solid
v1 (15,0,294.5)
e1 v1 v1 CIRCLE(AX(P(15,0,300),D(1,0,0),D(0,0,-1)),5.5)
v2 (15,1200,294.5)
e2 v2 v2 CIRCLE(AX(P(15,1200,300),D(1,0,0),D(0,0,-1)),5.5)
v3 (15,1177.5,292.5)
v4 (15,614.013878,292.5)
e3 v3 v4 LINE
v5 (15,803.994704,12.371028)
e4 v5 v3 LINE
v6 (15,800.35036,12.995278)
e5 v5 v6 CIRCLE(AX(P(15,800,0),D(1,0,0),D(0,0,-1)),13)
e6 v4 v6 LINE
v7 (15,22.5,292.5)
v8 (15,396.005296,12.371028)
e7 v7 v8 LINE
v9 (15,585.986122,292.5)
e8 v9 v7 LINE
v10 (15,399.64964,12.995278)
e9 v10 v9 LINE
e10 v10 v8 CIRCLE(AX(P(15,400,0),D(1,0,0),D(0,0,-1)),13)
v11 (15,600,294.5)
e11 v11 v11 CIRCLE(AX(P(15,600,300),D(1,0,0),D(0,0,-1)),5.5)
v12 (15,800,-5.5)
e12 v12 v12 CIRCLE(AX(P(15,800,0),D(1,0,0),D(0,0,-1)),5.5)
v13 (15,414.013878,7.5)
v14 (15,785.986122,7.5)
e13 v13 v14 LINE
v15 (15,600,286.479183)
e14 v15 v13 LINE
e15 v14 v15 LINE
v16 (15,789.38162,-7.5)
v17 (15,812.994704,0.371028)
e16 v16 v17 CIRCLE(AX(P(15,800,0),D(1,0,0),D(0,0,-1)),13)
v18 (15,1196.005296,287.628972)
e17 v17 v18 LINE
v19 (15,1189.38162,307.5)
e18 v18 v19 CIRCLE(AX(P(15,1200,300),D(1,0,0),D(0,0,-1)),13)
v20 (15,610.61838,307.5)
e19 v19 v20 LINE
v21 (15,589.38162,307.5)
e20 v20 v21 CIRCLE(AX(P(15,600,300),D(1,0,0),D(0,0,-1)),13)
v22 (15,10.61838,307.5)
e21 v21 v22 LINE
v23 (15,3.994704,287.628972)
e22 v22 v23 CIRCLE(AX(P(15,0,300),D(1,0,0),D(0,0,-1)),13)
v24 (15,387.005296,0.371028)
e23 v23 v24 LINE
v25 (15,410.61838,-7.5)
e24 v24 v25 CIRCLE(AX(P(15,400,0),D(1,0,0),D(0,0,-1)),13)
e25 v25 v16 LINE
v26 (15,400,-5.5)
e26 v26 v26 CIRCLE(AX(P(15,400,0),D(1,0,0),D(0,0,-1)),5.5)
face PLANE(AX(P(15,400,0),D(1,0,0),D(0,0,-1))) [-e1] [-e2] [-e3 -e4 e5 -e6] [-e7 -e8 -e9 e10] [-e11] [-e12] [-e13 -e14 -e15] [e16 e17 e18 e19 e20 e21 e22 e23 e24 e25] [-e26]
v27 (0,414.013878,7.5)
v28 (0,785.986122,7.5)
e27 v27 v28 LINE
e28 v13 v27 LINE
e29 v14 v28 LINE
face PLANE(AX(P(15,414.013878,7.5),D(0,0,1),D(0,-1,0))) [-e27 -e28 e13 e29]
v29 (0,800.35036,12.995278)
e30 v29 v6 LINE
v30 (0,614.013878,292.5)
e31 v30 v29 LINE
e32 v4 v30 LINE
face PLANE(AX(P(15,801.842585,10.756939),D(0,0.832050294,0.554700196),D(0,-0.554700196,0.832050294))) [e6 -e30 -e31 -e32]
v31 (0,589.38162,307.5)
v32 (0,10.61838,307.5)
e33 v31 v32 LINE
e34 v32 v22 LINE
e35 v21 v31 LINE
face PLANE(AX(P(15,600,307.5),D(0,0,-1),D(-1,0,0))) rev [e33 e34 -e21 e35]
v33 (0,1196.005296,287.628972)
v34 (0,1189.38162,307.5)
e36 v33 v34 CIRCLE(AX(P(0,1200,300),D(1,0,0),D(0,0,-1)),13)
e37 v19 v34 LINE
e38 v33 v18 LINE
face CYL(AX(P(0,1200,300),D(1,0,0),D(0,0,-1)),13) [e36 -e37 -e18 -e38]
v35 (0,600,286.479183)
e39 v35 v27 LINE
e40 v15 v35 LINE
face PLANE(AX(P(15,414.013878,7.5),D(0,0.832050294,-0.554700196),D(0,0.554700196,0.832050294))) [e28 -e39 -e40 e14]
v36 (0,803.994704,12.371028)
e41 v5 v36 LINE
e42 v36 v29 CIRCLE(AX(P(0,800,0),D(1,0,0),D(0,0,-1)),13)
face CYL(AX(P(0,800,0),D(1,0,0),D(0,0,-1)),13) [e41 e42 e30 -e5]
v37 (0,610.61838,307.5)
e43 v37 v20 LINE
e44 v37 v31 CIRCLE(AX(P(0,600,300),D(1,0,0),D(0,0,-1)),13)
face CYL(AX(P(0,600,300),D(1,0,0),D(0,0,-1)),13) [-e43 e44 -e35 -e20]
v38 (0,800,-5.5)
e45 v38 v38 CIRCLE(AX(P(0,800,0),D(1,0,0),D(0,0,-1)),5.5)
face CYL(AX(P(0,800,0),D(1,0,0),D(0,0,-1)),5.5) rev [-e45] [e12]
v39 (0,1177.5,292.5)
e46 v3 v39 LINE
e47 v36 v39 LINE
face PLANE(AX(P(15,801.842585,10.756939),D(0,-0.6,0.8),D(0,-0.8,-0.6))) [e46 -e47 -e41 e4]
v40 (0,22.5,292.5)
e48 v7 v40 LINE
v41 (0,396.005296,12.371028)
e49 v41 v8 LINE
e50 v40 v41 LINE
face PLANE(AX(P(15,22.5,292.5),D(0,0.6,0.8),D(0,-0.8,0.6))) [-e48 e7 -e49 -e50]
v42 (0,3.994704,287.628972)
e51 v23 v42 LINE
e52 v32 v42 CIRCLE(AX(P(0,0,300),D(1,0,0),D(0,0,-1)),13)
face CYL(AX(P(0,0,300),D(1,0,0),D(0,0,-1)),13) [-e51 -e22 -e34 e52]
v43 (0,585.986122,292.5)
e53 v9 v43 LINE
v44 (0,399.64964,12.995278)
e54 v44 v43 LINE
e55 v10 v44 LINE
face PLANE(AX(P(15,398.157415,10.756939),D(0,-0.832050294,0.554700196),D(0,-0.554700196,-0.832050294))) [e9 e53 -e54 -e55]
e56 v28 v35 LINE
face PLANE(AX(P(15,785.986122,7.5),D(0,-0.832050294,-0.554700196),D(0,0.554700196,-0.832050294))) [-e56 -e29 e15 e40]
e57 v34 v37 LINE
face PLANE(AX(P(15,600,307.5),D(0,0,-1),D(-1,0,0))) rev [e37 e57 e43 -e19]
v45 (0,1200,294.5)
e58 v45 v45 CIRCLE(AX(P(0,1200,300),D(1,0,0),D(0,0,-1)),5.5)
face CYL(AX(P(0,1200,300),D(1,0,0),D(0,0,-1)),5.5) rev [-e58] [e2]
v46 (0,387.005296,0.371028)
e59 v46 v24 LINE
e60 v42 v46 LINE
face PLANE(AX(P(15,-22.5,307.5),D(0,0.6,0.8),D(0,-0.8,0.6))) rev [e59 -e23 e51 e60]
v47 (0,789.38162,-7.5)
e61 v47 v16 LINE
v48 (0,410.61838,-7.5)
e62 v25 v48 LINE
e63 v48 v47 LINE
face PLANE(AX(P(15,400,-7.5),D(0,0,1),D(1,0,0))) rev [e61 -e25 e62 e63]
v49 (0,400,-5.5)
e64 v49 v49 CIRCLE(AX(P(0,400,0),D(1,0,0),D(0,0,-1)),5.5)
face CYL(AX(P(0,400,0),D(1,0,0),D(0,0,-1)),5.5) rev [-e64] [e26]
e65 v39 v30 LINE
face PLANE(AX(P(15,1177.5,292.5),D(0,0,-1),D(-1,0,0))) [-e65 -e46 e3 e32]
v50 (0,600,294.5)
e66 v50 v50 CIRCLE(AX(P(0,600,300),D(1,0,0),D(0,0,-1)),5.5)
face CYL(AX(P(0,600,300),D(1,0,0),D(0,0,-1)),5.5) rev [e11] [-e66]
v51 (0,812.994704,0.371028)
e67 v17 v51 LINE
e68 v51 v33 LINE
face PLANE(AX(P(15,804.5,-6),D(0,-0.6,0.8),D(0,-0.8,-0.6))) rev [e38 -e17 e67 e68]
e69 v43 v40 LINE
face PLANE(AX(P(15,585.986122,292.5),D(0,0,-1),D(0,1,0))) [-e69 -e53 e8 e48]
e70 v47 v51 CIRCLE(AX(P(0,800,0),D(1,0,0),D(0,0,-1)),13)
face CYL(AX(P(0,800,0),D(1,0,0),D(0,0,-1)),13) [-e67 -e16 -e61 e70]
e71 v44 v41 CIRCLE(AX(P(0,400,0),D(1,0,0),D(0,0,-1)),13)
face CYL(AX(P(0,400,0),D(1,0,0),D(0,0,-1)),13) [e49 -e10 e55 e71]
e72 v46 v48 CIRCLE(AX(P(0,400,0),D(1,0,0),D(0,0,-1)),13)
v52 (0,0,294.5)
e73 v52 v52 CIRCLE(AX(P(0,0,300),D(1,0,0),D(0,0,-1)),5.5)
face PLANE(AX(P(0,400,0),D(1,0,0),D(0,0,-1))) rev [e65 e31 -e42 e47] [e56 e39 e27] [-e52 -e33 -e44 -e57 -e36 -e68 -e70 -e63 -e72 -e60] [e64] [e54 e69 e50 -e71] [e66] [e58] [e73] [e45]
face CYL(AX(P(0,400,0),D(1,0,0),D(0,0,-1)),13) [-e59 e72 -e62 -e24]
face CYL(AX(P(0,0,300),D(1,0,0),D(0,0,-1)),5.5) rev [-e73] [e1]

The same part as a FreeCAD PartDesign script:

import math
import FreeCAD as App
import Part
import Sketcher
Q = App.Units.Quantity


def add_polygon(sketch, points):
    """Adds a closed chain of lines whose ends are joined by coincident constraints."""
    first, n = sketch.GeometryCount, len(points)
    for a, b in zip(points, points[1:] + points[:1]):
        sketch.addGeometry(Part.LineSegment(App.Vector(*a, 0), App.Vector(*b, 0)), False)
    for i in range(n):
        sketch.addConstraint(Sketcher.Constraint("Coincident", first + i, 2, first + (i + 1) % n, 1))

doc = App.newDocument("Part")
body = doc.addObject("PartDesign::Body", "Body")

# Sketch on YZ plane
sketch1 = doc.addObject("Sketcher::SketchObject", "Sketch")
body.addObject(sketch1)
sketch1.AttachmentSupport = (doc.YZ_Plane, [""])
sketch1.MapMode = "FlatFace"
sketch1.addGeometry(Part.LineSegment(App.Vector(-22.5, 307.5, 0), App.Vector(395.5, -6, 0)), False)  # 0
sketch1.addGeometry(Part.ArcOfCircle(Part.Circle(App.Vector(400, 0, 0), App.Vector(0, 0, 1), 7.5), math.radians(-126.869898), math.radians(-90)), False)  # 1
sketch1.addGeometry(Part.LineSegment(App.Vector(400, -7.5, 0), App.Vector(800, -7.5, 0)), False)  # 2
sketch1.addGeometry(Part.ArcOfCircle(Part.Circle(App.Vector(800, 0, 0), App.Vector(0, 0, 1), 7.5), math.radians(-90), math.radians(-53.130102)), False)  # 3
sketch1.addGeometry(Part.LineSegment(App.Vector(804.5, -6, 0), App.Vector(1222.5, 307.5, 0)), False)  # 4
sketch1.addGeometry(Part.LineSegment(App.Vector(1222.5, 307.5, 0), App.Vector(-22.5, 307.5, 0)), False)  # 5
add_polygon(sketch1, [(785.986122, 7.5), (414.013878, 7.5), (600, 286.479183)])  # lines 6-8
add_polygon(sketch1, [(22.5, 292.5), (585.986122, 292.5), (398.157415, 10.756939)])  # lines 9-11
add_polygon(sketch1, [(1177.5, 292.5), (801.842585, 10.756939), (614.013878, 292.5)])  # lines 12-14
sketch1.addConstraint(Sketcher.Constraint("Tangent", 0, 2, 1, 1))
sketch1.addConstraint(Sketcher.Constraint("Tangent", 1, 2, 2, 1))
sketch1.addConstraint(Sketcher.Constraint("Tangent", 2, 2, 3, 1))
sketch1.addConstraint(Sketcher.Constraint("Tangent", 3, 2, 4, 1))
sketch1.addConstraint(Sketcher.Constraint("Coincident", 4, 2, 5, 1))
sketch1.addConstraint(Sketcher.Constraint("Coincident", 5, 2, 0, 1))
sketch1.addConstraint(Sketcher.Constraint("Horizontal", 2))
sketch1.addConstraint(Sketcher.Constraint("Horizontal", 5))
sketch1.addConstraint(Sketcher.Constraint("Horizontal", 6))
sketch1.addConstraint(Sketcher.Constraint("Horizontal", 9))
sketch1.addConstraint(Sketcher.Constraint("Horizontal", 14))
sketch1.addConstraint(Sketcher.Constraint("Equal", 1, 3))
sketch1.addConstraint(Sketcher.Constraint("PointOnObject", 1, 3, -1))
sketch1.addConstraint(Sketcher.Constraint("Parallel", 7, 10))
sketch1.addConstraint(Sketcher.Constraint("Parallel", 0, 11))
sketch1.addConstraint(Sketcher.Constraint("Parallel", 4, 12))
sketch1.addConstraint(Sketcher.Constraint("Parallel", 8, 13))
sketch1.addConstraint(Sketcher.Constraint("Horizontal", 10, 2, 12, 2))
sketch1.addConstraint(Sketcher.Constraint("Horizontal", 11, 2, 13, 2))
sketch1.addConstraint(Sketcher.Constraint("Equal", 9, 14))
sketch1.addConstraint(Sketcher.Constraint("Equal", 0, 4))
sketch1.addConstraint(Sketcher.Constraint("Radius", 1, Q("7.5 mm")))
sketch1.addConstraint(Sketcher.Constraint("DistanceX", 2, 1, 2, 2, Q("400 mm")))
sketch1.addConstraint(Sketcher.Constraint("DistanceX", 5, 2, 5, 1, Q("1245 mm")))
sketch1.addConstraint(Sketcher.Constraint("DistanceX", -1, 1, 1, 3, Q("400 mm")))
sketch1.addConstraint(Sketcher.Constraint("DistanceY", 0, 2, -1, 1, Q("6 mm")))
sketch1.addConstraint(Sketcher.Constraint("DistanceX", -1, 1, 7, 2, Q("600 mm")))
sketch1.addConstraint(Sketcher.Constraint("DistanceY", 1, 2, 6, 2, Q("15 mm")))
sketch1.addConstraint(Sketcher.Constraint("DistanceY", 6, 2, 9, 2, Q("285 mm")))
sketch1.addConstraint(Sketcher.Constraint("DistanceX", 9, 2, 8, 2, Q("200 mm")))
sketch1.addConstraint(Sketcher.Constraint("DistanceX", 5, 2, 11, 2, Q("45 mm")))
sketch1.addConstraint(Sketcher.Constraint("DistanceX", 14, 2, 4, 2, Q("45 mm")))
sketch1.addConstraint(Sketcher.Constraint("DistanceX", 9, 1, 9, 2, Q("563.486122 mm")))
sketch1.addConstraint(Sketcher.Constraint("Distance", 7, Q("335.291249 mm")))
pad1 = doc.addObject("PartDesign::Pad", "Pad")
body.addObject(pad1)
pad1.Profile = sketch1
pad1.Length = 15

# Sketch on YZ plane
sketch2 = doc.addObject("Sketcher::SketchObject", "Sketch001")
body.addObject(sketch2)
sketch2.AttachmentSupport = (doc.YZ_Plane, [""])
sketch2.MapMode = "FlatFace"
sketch2.AttachmentOffset = App.Placement(App.Vector(0, 0, 15), App.Rotation())
sketch2.addGeometry(Part.Circle(App.Vector(400, 0, 0), App.Vector(0, 0, 1), 13), False)
sketch2.addGeometry(Part.Circle(App.Vector(0, 300, 0), App.Vector(0, 0, 1), 13), False)
sketch2.addGeometry(Part.Circle(App.Vector(600, 300, 0), App.Vector(0, 0, 1), 13), False)
sketch2.addGeometry(Part.Circle(App.Vector(1200, 300, 0), App.Vector(0, 0, 1), 13), False)
sketch2.addGeometry(Part.Circle(App.Vector(800, 0, 0), App.Vector(0, 0, 1), 13), False)
sketch2.addConstraint(Sketcher.Constraint("Equal", 0, 1))
sketch2.addConstraint(Sketcher.Constraint("Equal", 1, 2))
sketch2.addConstraint(Sketcher.Constraint("Equal", 2, 3))
sketch2.addConstraint(Sketcher.Constraint("Equal", 3, 4))
sketch2.addConstraint(Sketcher.Constraint("PointOnObject", 0, 3, -1))
sketch2.addConstraint(Sketcher.Constraint("PointOnObject", 1, 3, -2))
sketch2.addConstraint(Sketcher.Constraint("PointOnObject", 4, 3, -1))
sketch2.addConstraint(Sketcher.Constraint("Horizontal", 1, 3, 2, 3))
sketch2.addConstraint(Sketcher.Constraint("Horizontal", 2, 3, 3, 3))
sketch2.addConstraint(Sketcher.Constraint("Diameter", 0, Q("26 mm")))
sketch2.addConstraint(Sketcher.Constraint("DistanceX", -1, 1, 0, 3, Q("400 mm")))
sketch2.addConstraint(Sketcher.Constraint("DistanceY", -1, 1, 1, 3, Q("300 mm")))
sketch2.addConstraint(Sketcher.Constraint("DistanceX", -1, 1, 2, 3, Q("600 mm")))
sketch2.addConstraint(Sketcher.Constraint("DistanceX", -1, 1, 3, 3, Q("1200 mm")))
sketch2.addConstraint(Sketcher.Constraint("DistanceX", -1, 1, 4, 3, Q("800 mm")))
pad2 = doc.addObject("PartDesign::Pad", "Pad001")
body.addObject(pad2)
pad2.Profile = sketch2
pad2.Length = 15
pad2.Reversed = True

# Sketch on YZ plane
sketch3 = doc.addObject("Sketcher::SketchObject", "Sketch002")
body.addObject(sketch3)
sketch3.AttachmentSupport = (doc.YZ_Plane, [""])
sketch3.MapMode = "FlatFace"
sketch3.AttachmentOffset = App.Placement(App.Vector(0, 0, 15), App.Rotation())
sketch3.addGeometry(Part.LineSegment(App.Vector(-10.61838, 307.5, 0), App.Vector(-22.5, 307.5, 0)), False)
sketch3.addGeometry(Part.LineSegment(App.Vector(-22.5, 307.5, 0), App.Vector(-12.994704, 300.371028, 0)), False)
sketch3.addGeometry(Part.ArcOfCircle(Part.Circle(App.Vector(0, 300, 0), App.Vector(0, 0, 1), 13), math.radians(144.765582), math.radians(178.36452)), False)
sketch3.addGeometry(Part.LineSegment(App.Vector(1222.5, 307.5, 0), App.Vector(1210.61838, 307.5, 0)), False)
sketch3.addGeometry(Part.ArcOfCircle(Part.Circle(App.Vector(1200, 300, 0), App.Vector(0, 0, 1), 13), math.radians(1.63548), math.radians(35.234418)), False)
sketch3.addGeometry(Part.LineSegment(App.Vector(1212.994704, 300.371028, 0), App.Vector(1222.5, 307.5, 0)), False)
sketch3.addConstraint(Sketcher.Constraint("Coincident", 0, 2, 1, 1))
sketch3.addConstraint(Sketcher.Constraint("Coincident", 1, 2, 2, 2))
sketch3.addConstraint(Sketcher.Constraint("Coincident", 2, 1, 0, 1))
sketch3.addConstraint(Sketcher.Constraint("Coincident", 3, 2, 4, 2))
sketch3.addConstraint(Sketcher.Constraint("Coincident", 4, 1, 5, 1))
sketch3.addConstraint(Sketcher.Constraint("Coincident", 5, 2, 3, 1))
sketch3.addConstraint(Sketcher.Constraint("Horizontal", 0))
sketch3.addConstraint(Sketcher.Constraint("Horizontal", 3))
sketch3.addConstraint(Sketcher.Constraint("Equal", 2, 4))
sketch3.addConstraint(Sketcher.Constraint("PointOnObject", 2, 3, -2))
sketch3.addConstraint(Sketcher.Constraint("Horizontal", 2, 3, 4, 3))
sketch3.addConstraint(Sketcher.Constraint("Horizontal", 2, 1, 3, 2))
sketch3.addConstraint(Sketcher.Constraint("Horizontal", 1, 2, 4, 1))
sketch3.addConstraint(Sketcher.Constraint("Equal", 0, 3))
sketch3.addConstraint(Sketcher.Constraint("Radius", 2, Q("13 mm")))
sketch3.addConstraint(Sketcher.Constraint("DistanceY", -1, 1, 2, 3, Q("300 mm")))
sketch3.addConstraint(Sketcher.Constraint("DistanceX", -1, 1, 4, 3, Q("1200 mm")))
sketch3.addConstraint(Sketcher.Constraint("DistanceX", 0, 2, -1, 1, Q("22.5 mm")))
sketch3.addConstraint(Sketcher.Constraint("DistanceY", -1, 1, 0, 2, Q("307.5 mm")))
sketch3.addConstraint(Sketcher.Constraint("Distance", 1, Q("11.88162 mm")))
pocket1 = doc.addObject("PartDesign::Pocket", "Pocket")
body.addObject(pocket1)
pocket1.Profile = sketch3
pocket1.Length = 15

# Sketch on YZ plane
sketch4 = doc.addObject("Sketcher::SketchObject", "Sketch003")
body.addObject(sketch4)
sketch4.AttachmentSupport = (doc.YZ_Plane, [""])
sketch4.MapMode = "FlatFace"
sketch4.AttachmentOffset = App.Placement(App.Vector(0, 0, 15), App.Rotation())
sketch4.addGeometry(Part.Circle(App.Vector(0, 300, 0), App.Vector(0, 0, 1), 5.5), False)
sketch4.addGeometry(Part.Circle(App.Vector(600, 300, 0), App.Vector(0, 0, 1), 5.5), False)
sketch4.addGeometry(Part.Circle(App.Vector(1200, 300, 0), App.Vector(0, 0, 1), 5.5), False)
sketch4.addGeometry(Part.Circle(App.Vector(800, 0, 0), App.Vector(0, 0, 1), 5.5), False)
sketch4.addGeometry(Part.Circle(App.Vector(400, 0, 0), App.Vector(0, 0, 1), 5.5), False)
sketch4.addConstraint(Sketcher.Constraint("Equal", 0, 1))
sketch4.addConstraint(Sketcher.Constraint("Equal", 1, 2))
sketch4.addConstraint(Sketcher.Constraint("Equal", 2, 3))
sketch4.addConstraint(Sketcher.Constraint("Equal", 3, 4))
sketch4.addConstraint(Sketcher.Constraint("PointOnObject", 0, 3, -2))
sketch4.addConstraint(Sketcher.Constraint("PointOnObject", 3, 3, -1))
sketch4.addConstraint(Sketcher.Constraint("PointOnObject", 4, 3, -1))
sketch4.addConstraint(Sketcher.Constraint("Horizontal", 0, 3, 1, 3))
sketch4.addConstraint(Sketcher.Constraint("Horizontal", 1, 3, 2, 3))
sketch4.addConstraint(Sketcher.Constraint("Diameter", 0, Q("11 mm")))
sketch4.addConstraint(Sketcher.Constraint("DistanceY", -1, 1, 0, 3, Q("300 mm")))
sketch4.addConstraint(Sketcher.Constraint("DistanceX", -1, 1, 1, 3, Q("600 mm")))
sketch4.addConstraint(Sketcher.Constraint("DistanceX", -1, 1, 2, 3, Q("1200 mm")))
sketch4.addConstraint(Sketcher.Constraint("DistanceX", -1, 1, 3, 3, Q("800 mm")))
sketch4.addConstraint(Sketcher.Constraint("DistanceX", -1, 1, 4, 3, Q("400 mm")))
pocket2 = doc.addObject("PartDesign::Pocket", "Pocket001")
body.addObject(pocket2)
pocket2.Profile = sketch4
pocket2.Length = 15

doc.recompute()
